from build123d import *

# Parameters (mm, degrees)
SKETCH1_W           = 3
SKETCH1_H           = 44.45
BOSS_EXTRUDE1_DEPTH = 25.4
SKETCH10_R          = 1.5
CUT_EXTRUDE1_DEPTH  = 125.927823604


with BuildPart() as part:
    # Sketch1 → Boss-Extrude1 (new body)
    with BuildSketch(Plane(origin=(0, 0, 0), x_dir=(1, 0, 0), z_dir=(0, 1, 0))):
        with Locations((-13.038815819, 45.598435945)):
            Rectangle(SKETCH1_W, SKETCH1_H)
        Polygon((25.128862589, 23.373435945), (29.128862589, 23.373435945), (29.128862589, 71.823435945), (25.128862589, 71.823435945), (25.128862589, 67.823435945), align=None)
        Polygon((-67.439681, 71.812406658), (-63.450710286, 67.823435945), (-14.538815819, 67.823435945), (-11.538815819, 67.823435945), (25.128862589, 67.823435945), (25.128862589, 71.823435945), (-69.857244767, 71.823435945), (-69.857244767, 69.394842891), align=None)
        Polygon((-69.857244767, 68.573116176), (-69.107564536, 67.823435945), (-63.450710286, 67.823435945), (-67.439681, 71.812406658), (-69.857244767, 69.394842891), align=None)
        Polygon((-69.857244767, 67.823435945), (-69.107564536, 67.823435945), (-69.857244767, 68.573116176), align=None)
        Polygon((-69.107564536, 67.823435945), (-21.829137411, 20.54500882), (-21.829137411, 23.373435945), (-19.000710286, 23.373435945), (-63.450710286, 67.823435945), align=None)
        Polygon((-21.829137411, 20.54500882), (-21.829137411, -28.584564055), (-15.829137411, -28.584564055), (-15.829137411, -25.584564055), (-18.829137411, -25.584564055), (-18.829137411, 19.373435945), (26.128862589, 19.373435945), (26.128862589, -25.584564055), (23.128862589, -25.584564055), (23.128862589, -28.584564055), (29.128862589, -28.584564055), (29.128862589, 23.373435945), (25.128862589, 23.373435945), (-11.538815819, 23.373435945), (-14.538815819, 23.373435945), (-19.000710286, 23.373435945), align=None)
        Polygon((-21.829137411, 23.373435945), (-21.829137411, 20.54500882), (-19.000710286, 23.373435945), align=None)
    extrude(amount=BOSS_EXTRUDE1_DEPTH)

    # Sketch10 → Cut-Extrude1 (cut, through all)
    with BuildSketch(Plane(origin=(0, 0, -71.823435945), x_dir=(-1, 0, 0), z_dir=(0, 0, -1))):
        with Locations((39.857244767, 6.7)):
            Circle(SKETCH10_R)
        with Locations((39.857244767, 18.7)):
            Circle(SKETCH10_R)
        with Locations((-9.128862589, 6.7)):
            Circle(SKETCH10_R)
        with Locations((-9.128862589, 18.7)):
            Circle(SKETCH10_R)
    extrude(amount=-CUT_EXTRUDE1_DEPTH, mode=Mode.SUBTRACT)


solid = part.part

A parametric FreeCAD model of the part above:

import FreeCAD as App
import Part
import Sketcher
Q = App.Units.Quantity


def add_polygon(sketch, points):
    """Adds a closed chain of lines whose ends are joined by coincident constraints."""
    first, n = sketch.GeometryCount, len(points)
    for a, b in zip(points, points[1:] + points[:1]):
        sketch.addGeometry(Part.LineSegment(App.Vector(*a, 0), App.Vector(*b, 0)), False)
    for i in range(n):
        sketch.addConstraint(Sketcher.Constraint("Coincident", first + i, 2, first + (i + 1) % n, 1))

doc = App.newDocument("Part")
params = doc.addObject("Spreadsheet::Sheet", "Params")
for row, (alias, value) in enumerate([
    ("sketch1_width", "6 mm"),
    ("sketch1_width2", "3 mm"),
    ("sketch1_height", "4 mm"),
    ("sketch1_height2", "44.45 mm"),
    ("pad1_length", "25.4 mm"),
    ("sketch2_diameter", "3 mm"),
], start=1):
    params.set(f"A{row}", alias)
    params.set(f"B{row}", "=" + value)
    params.setAlias(f"B{row}", alias)

body = doc.addObject("PartDesign::Body", "Body")

# Sketch on XZ plane
sketch1 = body.newObject("Sketcher::SketchObject", "Sketch")
sketch1.AttachmentSupport = (doc.getObject("XZ_Plane"), [""])
sketch1.MapMode = "FlatFace"
add_polygon(sketch1, [(-69.1, -67.8), (-21.8, -20.5), (-21.8, 28.6), (-15.8, 28.6), (-15.8, 25.6), (-18.8, 25.6), (-18.8, -19.4), (26.1, -19.4), (26.1, 25.6), (23.1, 25.6), (23.1, 28.6), (29.1, 28.6), (29.1, -71.8), (-69.9, -71.8), (-69.9, -67.8)])  # lines 0-14
add_polygon(sketch1, [(-14.5, -23.4), (-19, -23.4), (-63.5, -67.8), (-14.5, -67.8)])  # lines 15-18
add_polygon(sketch1, [(-11.5, -23.4), (-11.5, -67.8), (25.1, -67.8), (25.1, -23.4)])  # lines 19-22
sketch1.addConstraint([
    Sketcher.Constraint("Vertical", 1),
    Sketcher.Constraint("Horizontal", 2),
    Sketcher.Constraint("Vertical", 3),
    Sketcher.Constraint("Horizontal", 4),
    Sketcher.Constraint("Vertical", 5),
    Sketcher.Constraint("Horizontal", 6),
    Sketcher.Constraint("Vertical", 7),
    Sketcher.Constraint("Horizontal", 8),
    Sketcher.Constraint("Vertical", 9),
    Sketcher.Constraint("Horizontal", 10),
    Sketcher.Constraint("Vertical", 11),
    Sketcher.Constraint("Horizontal", 12),
    Sketcher.Constraint("Vertical", 13),
    Sketcher.Constraint("Horizontal", 14),
    Sketcher.Constraint("Horizontal", 15),
    Sketcher.Constraint("Horizontal", 17),
    Sketcher.Constraint("Vertical", 18),
    Sketcher.Constraint("Vertical", 19),
    Sketcher.Constraint("Horizontal", 20),
    Sketcher.Constraint("Vertical", 21),
    Sketcher.Constraint("Horizontal", 22),
    Sketcher.Constraint("Parallel", 0, 16),
    Sketcher.Constraint("Horizontal", 4, 2, 7, 2),
    Sketcher.Constraint("Horizontal", 2, 2, 9, 2),
    Sketcher.Constraint("Horizontal", 14, 2, 16, 2),
    Sketcher.Constraint("Horizontal", 17, 2, 19, 2),
    Sketcher.Constraint("Horizontal", 18, 2, 21, 2),
    Sketcher.Constraint("Equal", 4, 8),
    Sketcher.Constraint("Equal", 2, 10),
    Sketcher.Constraint("Equal", 8, 3),
    Sketcher.Constraint("Equal", 6, 5),
    Sketcher.Constraint("DistanceX", 2, 1, 2, 2, Q("6 mm")),
    Sketcher.Constraint("DistanceX", 4, 2, 4, 1, Q("3 mm")),
    Sketcher.Constraint("DistanceY", 13, 1, 13, 2, Q("4 mm")),
    Sketcher.Constraint("Angle", 0, Q("45 deg")),
    Sketcher.Constraint("DistanceY", 15, 2, 5, 2, Q("4 mm")),
    Sketcher.Constraint("DistanceX", 17, 2, 19, 2, Q("3 mm")),
    Sketcher.Constraint("DistanceX", 20, 2, 11, 2, Q("4 mm")),
    Sketcher.Constraint("DistanceY", 18, 1, 18, 2, Q("44.45 mm")),
    Sketcher.Constraint("DistanceX", 6, 1, 6, 2, Q("44.958 mm")),
    Sketcher.Constraint("DistanceX", 14, 1, 14, 2, Q("0.74968 mm")),
    Sketcher.Constraint("DistanceX", 20, 1, 20, 2, Q("36.667678 mm")),
    Sketcher.Constraint("DistanceX", 12, 2, 12, 1, Q("98.986107 mm")),
    Sketcher.Constraint("DistanceX", 15, 2, 15, 1, Q("4.461894 mm")),
    Sketcher.Constraint("DistanceY", 0, 2, -1, 1, Q("20.545009 mm")),
    Sketcher.Constraint("DistanceX", 15, 2, -1, 1, Q("19.00071 mm")),
])
sketch1.setExpression("Constraints[54]", "Params.sketch1_width")
sketch1.setExpression("Constraints[55]", "Params.sketch1_width2")
sketch1.setExpression("Constraints[56]", "Params.sketch1_height")
sketch1.setExpression("Constraints[61]", "Params.sketch1_height2")
pad1 = body.newObject("PartDesign::Pad", "Pad")
pad1.Profile = sketch1
pad1.setExpression("Length", "Params.pad1_length")
pad1.Reversed = True

# Sketch on XY plane
sketch2 = body.newObject("Sketcher::SketchObject", "Sketch001")
sketch2.AttachmentSupport = (doc.getObject("XY_Plane"), [""])
sketch2.MapMode = "FlatFace"
sketch2.AttachmentOffset = App.Placement(App.Vector(0, 0, -71.823436), App.Rotation())
sketch2.addGeometry([
    Part.Circle(App.Vector(-39.9, 6.7, 0), App.Vector(0, 0, 1), 1.5),
    Part.Circle(App.Vector(-39.9, 18.7, 0), App.Vector(0, 0, 1), 1.5),
    Part.Circle(App.Vector(9.1, 6.7, 0), App.Vector(0, 0, 1), 1.5),
    Part.Circle(App.Vector(9.1, 18.7, 0), App.Vector(0, 0, 1), 1.5),
], False)
sketch2.addConstraint([
    Sketcher.Constraint("Equal", 0, 1),
    Sketcher.Constraint("Equal", 1, 2),
    Sketcher.Constraint("Equal", 2, 3),
    Sketcher.Constraint("Horizontal", 0, 3, 2, 3),
    Sketcher.Constraint("Horizontal", 1, 3, 3, 3),
    Sketcher.Constraint("Vertical", 0, 3, 1, 3),
    Sketcher.Constraint("Vertical", 2, 3, 3, 3),
    Sketcher.Constraint("Diameter", 0, Q("3 mm")),
    Sketcher.Constraint("DistanceY", 0, 3, 1, 3, Q("12 mm")),
    Sketcher.Constraint("DistanceY", -1, 1, 0, 3, Q("6.7 mm")),
    Sketcher.Constraint("DistanceX", 0, 3, -1, 1, Q("39.857245 mm")),
    Sketcher.Constraint("DistanceX", -1, 1, 2, 3, Q("9.128863 mm")),
])
sketch2.setExpression("Constraints[7]", "Params.sketch2_diameter")
pocket1 = body.newObject("PartDesign::Pocket", "Pocket")
pocket1.Profile = sketch2
pocket1.Type = "ThroughAll"
pocket1.Reversed = True

doc.recompute()
